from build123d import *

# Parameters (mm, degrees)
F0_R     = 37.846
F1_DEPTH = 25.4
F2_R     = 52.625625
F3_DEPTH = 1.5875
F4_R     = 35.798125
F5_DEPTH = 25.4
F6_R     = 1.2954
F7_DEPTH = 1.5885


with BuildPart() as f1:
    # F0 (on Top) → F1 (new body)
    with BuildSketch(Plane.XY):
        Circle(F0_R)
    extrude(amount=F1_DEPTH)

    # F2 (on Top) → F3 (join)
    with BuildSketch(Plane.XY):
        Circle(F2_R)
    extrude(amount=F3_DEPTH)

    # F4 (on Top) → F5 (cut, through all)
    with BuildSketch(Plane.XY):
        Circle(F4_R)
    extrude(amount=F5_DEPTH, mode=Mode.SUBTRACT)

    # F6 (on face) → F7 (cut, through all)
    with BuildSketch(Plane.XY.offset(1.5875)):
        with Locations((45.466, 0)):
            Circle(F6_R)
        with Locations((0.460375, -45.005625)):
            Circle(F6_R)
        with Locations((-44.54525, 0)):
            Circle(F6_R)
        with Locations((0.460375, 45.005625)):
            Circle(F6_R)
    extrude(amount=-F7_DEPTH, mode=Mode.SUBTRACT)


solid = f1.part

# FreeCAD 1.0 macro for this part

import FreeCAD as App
import Part
import Sketcher

V = App.Vector
Q = App.Units.Quantity

doc = App.newDocument("Part")
body = doc.addObject("PartDesign::Body", "Body")

# Sketch on XY plane
sketch1 = body.newObject("Sketcher::SketchObject", "Sketch")
sketch1.AttachmentSupport = (doc.getObject("XY_Plane"), [""])
sketch1.MapMode = "FlatFace"
sketch1.addGeometry(Part.Circle(V(0, 0, 0), V(0, 0, 1), 38), False)
sketch1.addConstraint([
    Sketcher.Constraint("Coincident", 0, 3, -1, 1),
    Sketcher.Constraint("Diameter", 0, Q("2.98 in")),
])
pad1 = body.newObject("PartDesign::Pad", "Pad")
pad1.Profile = sketch1
pad1.Length = Q("1 in")

# Sketch on XY plane
sketch2 = body.newObject("Sketcher::SketchObject", "Sketch001")
sketch2.AttachmentSupport = (doc.getObject("XY_Plane"), [""])
sketch2.MapMode = "FlatFace"
sketch2.addGeometry(Part.Circle(V(0, 0, 0), V(0, 0, 1), 53), False)
sketch2.addConstraint([
    Sketcher.Constraint("Coincident", 0, 3, -1, 1),
    Sketcher.Constraint("Diameter", 0, 105.25125),
])
pad2 = body.newObject("PartDesign::Pad", "Pad001")
pad2.Profile = sketch2
pad2.Length = Q("0.0625 in")

# Sketch on XY plane
sketch3 = body.newObject("Sketcher::SketchObject", "Sketch002")
sketch3.AttachmentSupport = (doc.getObject("XY_Plane"), [""])
sketch3.MapMode = "FlatFace"
sketch3.addGeometry(Part.Circle(V(0, 0, 0), V(0, 0, 1), 36), False)
sketch3.addConstraint([
    Sketcher.Constraint("Coincident", 0, 3, -1, 1),
    Sketcher.Constraint("Diameter", 0, 71.59625),
])
pocket1 = body.newObject("PartDesign::Pocket", "Pocket")
pocket1.Profile = sketch3
pocket1.Type = "ThroughAll"
pocket1.Reversed = True

# Sketch on XY plane
sketch4 = body.newObject("Sketcher::SketchObject", "Sketch003")
sketch4.AttachmentSupport = (doc.getObject("XY_Plane"), [""])
sketch4.MapMode = "FlatFace"
sketch4.AttachmentOffset = App.Placement(V(0, 0, 0.0625 * 25.4), App.Rotation())
sketch4.addGeometry([
    Part.Circle(V(45.5, 0, 0), V(0, 0, 1), 1.3),
    Part.Circle(V(0.5, -45, 0), V(0, 0, 1), 1.3),
    Part.Circle(V(-44.5, 0, 0), V(0, 0, 1), 1.3),
    Part.Circle(V(0.5, 45, 0), V(0, 0, 1), 1.3),
], False)
sketch4.addConstraint([
    Sketcher.Constraint("Equal", 0, 1),
    Sketcher.Constraint("Equal", 1, 2),
    Sketcher.Constraint("Equal", 2, 3),
    Sketcher.Constraint("Symmetric", 1, 3, 3, 3, -1),
    Sketcher.Constraint("PointOnObject", 0, 3, -1),
    Sketcher.Constraint("PointOnObject", 2, 3, -1),
    Sketcher.Constraint("Diameter", 0, Q("0.102 in")),
    Sketcher.Constraint("DistanceX", -1, 1, 0, 3, Q("1.79 in")),
    Sketcher.Constraint("DistanceX", 2, 3, -1, 1, 44.54525),
    Sketcher.Constraint("DistanceY", 1, 3, 3, 3, 90.01125),
    Sketcher.Constraint("DistanceX", -1, 1, 1, 3, 0.460375),
])
pocket2 = body.newObject("PartDesign::Pocket", "Pocket001")
pocket2.Profile = sketch4
pocket2.Type = "ThroughAll"

doc.recompute()
